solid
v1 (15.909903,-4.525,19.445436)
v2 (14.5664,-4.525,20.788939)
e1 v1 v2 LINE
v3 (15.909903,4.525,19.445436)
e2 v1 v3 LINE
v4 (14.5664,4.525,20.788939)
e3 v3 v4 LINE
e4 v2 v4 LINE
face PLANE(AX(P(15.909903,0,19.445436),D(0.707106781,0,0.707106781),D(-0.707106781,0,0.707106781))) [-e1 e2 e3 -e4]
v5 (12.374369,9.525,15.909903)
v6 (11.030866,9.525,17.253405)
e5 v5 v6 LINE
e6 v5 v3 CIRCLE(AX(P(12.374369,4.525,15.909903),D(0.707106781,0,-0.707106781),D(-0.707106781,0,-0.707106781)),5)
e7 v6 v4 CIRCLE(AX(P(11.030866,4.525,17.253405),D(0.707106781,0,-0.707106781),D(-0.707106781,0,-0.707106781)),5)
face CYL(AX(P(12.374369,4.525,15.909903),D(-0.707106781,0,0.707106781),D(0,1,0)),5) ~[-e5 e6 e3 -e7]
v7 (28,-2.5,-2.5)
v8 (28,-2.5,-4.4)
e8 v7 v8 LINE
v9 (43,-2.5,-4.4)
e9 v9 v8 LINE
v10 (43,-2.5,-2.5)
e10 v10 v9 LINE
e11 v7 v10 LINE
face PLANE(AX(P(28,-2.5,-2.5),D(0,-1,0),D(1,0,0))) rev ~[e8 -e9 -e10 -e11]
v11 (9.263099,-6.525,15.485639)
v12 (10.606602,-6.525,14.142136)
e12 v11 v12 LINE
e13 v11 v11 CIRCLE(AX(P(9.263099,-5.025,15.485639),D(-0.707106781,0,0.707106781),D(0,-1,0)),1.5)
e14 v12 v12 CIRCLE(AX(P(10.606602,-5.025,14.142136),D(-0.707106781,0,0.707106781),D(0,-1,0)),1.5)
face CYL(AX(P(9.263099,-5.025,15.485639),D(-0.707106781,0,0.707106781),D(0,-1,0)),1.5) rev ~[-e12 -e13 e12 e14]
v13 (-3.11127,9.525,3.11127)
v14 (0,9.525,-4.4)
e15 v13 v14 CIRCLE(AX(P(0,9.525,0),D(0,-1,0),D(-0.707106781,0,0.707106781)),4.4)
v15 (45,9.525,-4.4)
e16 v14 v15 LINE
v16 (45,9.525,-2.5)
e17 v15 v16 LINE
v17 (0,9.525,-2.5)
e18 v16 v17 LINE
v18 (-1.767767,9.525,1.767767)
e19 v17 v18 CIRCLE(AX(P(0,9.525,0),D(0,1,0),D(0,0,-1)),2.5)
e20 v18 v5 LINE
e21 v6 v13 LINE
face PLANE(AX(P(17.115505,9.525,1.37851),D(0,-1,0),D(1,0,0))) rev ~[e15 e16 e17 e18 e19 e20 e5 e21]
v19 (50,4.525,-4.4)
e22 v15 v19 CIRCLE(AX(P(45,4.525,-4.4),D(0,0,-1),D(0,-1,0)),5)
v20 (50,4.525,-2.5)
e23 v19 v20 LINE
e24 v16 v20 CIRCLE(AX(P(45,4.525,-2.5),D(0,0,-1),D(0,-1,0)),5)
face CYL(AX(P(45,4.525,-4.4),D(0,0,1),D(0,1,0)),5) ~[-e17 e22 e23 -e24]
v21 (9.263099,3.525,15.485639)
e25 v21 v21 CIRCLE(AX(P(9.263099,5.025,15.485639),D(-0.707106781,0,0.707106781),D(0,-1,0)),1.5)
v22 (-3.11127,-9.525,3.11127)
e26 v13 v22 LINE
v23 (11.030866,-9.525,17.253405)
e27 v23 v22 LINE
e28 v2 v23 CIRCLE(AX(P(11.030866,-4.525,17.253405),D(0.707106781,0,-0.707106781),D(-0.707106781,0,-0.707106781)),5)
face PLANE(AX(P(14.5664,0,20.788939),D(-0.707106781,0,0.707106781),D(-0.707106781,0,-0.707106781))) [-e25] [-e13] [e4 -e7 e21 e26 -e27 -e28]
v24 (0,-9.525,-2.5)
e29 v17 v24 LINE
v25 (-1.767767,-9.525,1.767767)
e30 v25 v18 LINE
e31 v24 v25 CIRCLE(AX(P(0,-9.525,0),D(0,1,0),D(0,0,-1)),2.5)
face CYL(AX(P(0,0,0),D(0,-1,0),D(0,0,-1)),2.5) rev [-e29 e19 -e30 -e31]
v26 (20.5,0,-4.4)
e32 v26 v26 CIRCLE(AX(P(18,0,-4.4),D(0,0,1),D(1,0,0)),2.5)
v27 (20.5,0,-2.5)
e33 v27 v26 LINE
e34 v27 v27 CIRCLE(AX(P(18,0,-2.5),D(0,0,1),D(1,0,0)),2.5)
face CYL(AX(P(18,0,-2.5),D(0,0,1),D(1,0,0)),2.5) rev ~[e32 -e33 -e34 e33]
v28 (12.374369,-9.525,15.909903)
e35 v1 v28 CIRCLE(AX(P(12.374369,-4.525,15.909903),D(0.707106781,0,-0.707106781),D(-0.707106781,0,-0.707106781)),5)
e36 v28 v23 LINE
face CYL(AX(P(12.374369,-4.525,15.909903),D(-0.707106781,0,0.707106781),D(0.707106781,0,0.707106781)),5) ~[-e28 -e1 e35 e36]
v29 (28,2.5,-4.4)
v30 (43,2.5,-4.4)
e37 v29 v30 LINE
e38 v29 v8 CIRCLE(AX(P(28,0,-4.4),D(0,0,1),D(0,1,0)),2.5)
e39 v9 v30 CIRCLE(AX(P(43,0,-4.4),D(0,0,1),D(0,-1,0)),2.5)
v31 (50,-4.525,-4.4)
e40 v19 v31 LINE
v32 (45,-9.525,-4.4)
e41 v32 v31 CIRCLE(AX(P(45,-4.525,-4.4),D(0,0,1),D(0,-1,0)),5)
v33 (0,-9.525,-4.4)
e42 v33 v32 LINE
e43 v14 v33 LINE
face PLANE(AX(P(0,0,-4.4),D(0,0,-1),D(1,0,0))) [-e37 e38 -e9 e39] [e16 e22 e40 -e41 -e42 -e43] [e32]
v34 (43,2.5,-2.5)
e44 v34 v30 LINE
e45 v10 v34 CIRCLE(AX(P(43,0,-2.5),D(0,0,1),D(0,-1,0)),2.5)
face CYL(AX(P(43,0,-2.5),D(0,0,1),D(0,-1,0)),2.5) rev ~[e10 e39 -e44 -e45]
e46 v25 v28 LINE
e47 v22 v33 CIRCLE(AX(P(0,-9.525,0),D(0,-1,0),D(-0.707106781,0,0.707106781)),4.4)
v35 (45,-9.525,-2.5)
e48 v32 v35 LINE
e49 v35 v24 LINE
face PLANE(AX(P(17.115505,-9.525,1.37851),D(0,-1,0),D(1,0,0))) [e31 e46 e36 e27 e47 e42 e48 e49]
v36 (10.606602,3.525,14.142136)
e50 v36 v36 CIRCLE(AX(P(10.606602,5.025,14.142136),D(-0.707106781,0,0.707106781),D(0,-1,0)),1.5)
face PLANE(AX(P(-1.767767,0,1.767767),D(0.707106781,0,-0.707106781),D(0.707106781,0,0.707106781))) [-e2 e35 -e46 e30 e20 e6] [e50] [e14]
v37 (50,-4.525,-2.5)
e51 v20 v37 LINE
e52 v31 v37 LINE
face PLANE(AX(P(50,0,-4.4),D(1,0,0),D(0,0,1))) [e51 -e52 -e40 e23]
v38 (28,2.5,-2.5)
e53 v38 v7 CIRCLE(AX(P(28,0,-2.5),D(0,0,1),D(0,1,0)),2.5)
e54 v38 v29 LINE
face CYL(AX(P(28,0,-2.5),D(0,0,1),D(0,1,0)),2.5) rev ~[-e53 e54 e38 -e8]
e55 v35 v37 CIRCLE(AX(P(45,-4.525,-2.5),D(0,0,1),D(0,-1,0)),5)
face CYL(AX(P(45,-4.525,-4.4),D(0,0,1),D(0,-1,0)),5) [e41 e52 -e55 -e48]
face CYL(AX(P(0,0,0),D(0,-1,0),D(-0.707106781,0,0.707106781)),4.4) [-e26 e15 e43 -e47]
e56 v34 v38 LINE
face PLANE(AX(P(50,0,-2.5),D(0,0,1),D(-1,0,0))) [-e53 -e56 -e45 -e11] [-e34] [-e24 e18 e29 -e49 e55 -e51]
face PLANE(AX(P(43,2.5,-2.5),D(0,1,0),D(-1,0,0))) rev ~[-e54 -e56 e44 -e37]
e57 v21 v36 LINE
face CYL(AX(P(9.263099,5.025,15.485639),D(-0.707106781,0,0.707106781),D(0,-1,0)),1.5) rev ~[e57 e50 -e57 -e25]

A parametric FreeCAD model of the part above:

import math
import FreeCAD as App
import Part
import Sketcher
Q = App.Units.Quantity


def edges_at(feature, points):
    """Names of the edges that pass closest to the given points."""
    edges = feature.Shape.Edges
    near = lambda p: min(range(len(edges)), key=lambda i: edges[i].distToShape(Part.Vertex(*p))[0])
    return sorted({f"Edge{near(p) + 1}" for p in points})

doc = App.newDocument("Part")
body = doc.addObject("PartDesign::Body", "Body")

# Sketch on XZ plane
sketch1 = body.newObject("Sketcher::SketchObject", "Sketch")
sketch1.AttachmentSupport = (doc.getObject("XZ_Plane"), [""])
sketch1.MapMode = "FlatFace"
sketch1.addGeometry([
    Part.LineSegment(App.Vector(14.6, 20.8, 0), App.Vector(-3.1, 3.1, 0)),  # 0
    Part.ArcOfCircle(Part.Circle(App.Vector(0, 0, 0), App.Vector(0, 0, 1), 4.4), math.radians(135), math.radians(270)),  # 1
    Part.LineSegment(App.Vector(0, -4.4, 0), App.Vector(50, -4.4, 0)),  # 2
    Part.LineSegment(App.Vector(50, -4.4, 0), App.Vector(50, -2.5, 0)),  # 3
    Part.LineSegment(App.Vector(50, -2.5, 0), App.Vector(0, -2.5, 0)),  # 4
    Part.ArcOfCircle(Part.Circle(App.Vector(0, 0, 0), App.Vector(0, 0, 1), 2.5), math.radians(135), math.radians(270)),  # 5
    Part.LineSegment(App.Vector(-1.8, 1.8, 0), App.Vector(15.9, 19.4, 0)),  # 6
    Part.LineSegment(App.Vector(15.9, 19.4, 0), App.Vector(14.6, 20.8, 0)),  # 7
], False)
sketch1.addConstraint([
    Sketcher.Constraint("Tangent", 0, 2, 1, 1),
    Sketcher.Constraint("Tangent", 1, 2, 2, 1),
    Sketcher.Constraint("Coincident", 2, 2, 3, 1),
    Sketcher.Constraint("Coincident", 3, 2, 4, 1),
    Sketcher.Constraint("Tangent", 4, 2, 5, 2),
    Sketcher.Constraint("Tangent", 5, 1, 6, 1),
    Sketcher.Constraint("Coincident", 6, 2, 7, 1),
    Sketcher.Constraint("Coincident", 7, 2, 0, 1),
    Sketcher.Constraint("Horizontal", 2),
    Sketcher.Constraint("Vertical", 3),
    Sketcher.Constraint("Horizontal", 4),
    Sketcher.Constraint("Coincident", 1, 3, -1, 1),
    Sketcher.Constraint("Coincident", 5, 3, -1, 1),
    Sketcher.Constraint("Parallel", 0, 6),
    Sketcher.Constraint("Perpendicular", 6, 7),
    Sketcher.Constraint("Radius", 1, 4.4),
    Sketcher.Constraint("Radius", 5, 2.5),
    Sketcher.Constraint("DistanceX", 2, 1, 2, 2, 50.0),
    Sketcher.Constraint("Angle", 0, Q("-135 deg")),
    Sketcher.Constraint("Distance", 0, 25.0),
])
pad1 = body.newObject("PartDesign::Pad", "Pad")
pad1.Profile = sketch1
pad1.Length = 19.05
pad1.Midplane = True

# Sketch on XY plane
sketch2 = body.newObject("Sketcher::SketchObject", "Sketch001")
sketch2.AttachmentSupport = (doc.getObject("XY_Plane"), [""])
sketch2.MapMode = "FlatFace"
sketch2.AttachmentOffset = App.Placement(App.Vector(0, 0, -2.5), App.Rotation())
sketch2.addGeometry([
    Part.LineSegment(App.Vector(43, 2.5, 0), App.Vector(28, 2.5, 0)),  # 0
    Part.ArcOfCircle(Part.Circle(App.Vector(28, 0, 0), App.Vector(0, 0, 1), 2.5), math.radians(90), math.radians(270)),  # 1
    Part.LineSegment(App.Vector(28, -2.5, 0), App.Vector(43, -2.5, 0)),  # 2
    Part.ArcOfCircle(Part.Circle(App.Vector(43, 0, 0), App.Vector(0, 0, 1), 2.5), math.radians(-90), math.radians(90)),  # 3
    Part.Circle(App.Vector(18, 0, 0), App.Vector(0, 0, 1), 2.5),  # 4
], False)
sketch2.addConstraint([
    Sketcher.Constraint("Tangent", 0, 2, 1, 1),
    Sketcher.Constraint("Tangent", 1, 2, 2, 1),
    Sketcher.Constraint("Tangent", 2, 2, 3, 1),
    Sketcher.Constraint("Tangent", 3, 2, 0, 1),
    Sketcher.Constraint("Horizontal", 0),
    Sketcher.Constraint("Horizontal", 2),
    Sketcher.Constraint("Equal", 3, 4),
    Sketcher.Constraint("PointOnObject", 1, 3, -1),
    Sketcher.Constraint("PointOnObject", 4, 3, -1),
    Sketcher.Constraint("Diameter", 4, 5.0),
    Sketcher.Constraint("DistanceX", 0, 2, 0, 1, 15.0),
    Sketcher.Constraint("DistanceX", -1, 1, 1, 3, 28.0),
    Sketcher.Constraint("DistanceX", -1, 1, 4, 3, 18.0),
])
pocket1 = body.newObject("PartDesign::Pocket", "Pocket")
pocket1.Profile = sketch2
pocket1.Type = "ThroughAll"

# Sketch on an angled plane
sketch3 = body.newObject("Sketcher::SketchObject", "Sketch002")
sketch3.Placement = App.Placement(App.Vector(-3.11127, 0, 3.11127), App.Rotation(App.Vector(0, -1, 0), App.Vector(0.707106781, 0, 0.707106781), App.Vector(-0.707106781, 0, 0.707106781), "ZXY"))
sketch3.addGeometry([
    Part.Circle(App.Vector(-5, 17.5, 0), App.Vector(0, 0, 1), 1.5),
    Part.Circle(App.Vector(5, 17.5, 0), App.Vector(0, 0, 1), 1.5),
], False)
sketch3.addConstraint([
    Sketcher.Constraint("Equal", 0, 1),
    Sketcher.Constraint("Symmetric", 0, 3, 1, 3, -2),
    Sketcher.Constraint("Diameter", 0, 3.0),
    Sketcher.Constraint("DistanceY", -1, 1, 0, 3, 17.5),
    Sketcher.Constraint("DistanceX", 0, 3, 1, 3, 10.05),
])
pocket2 = body.newObject("PartDesign::Pocket", "Pocket001")
pocket2.Profile = sketch3
pocket2.Length = 10
doc.recompute()

fillet = body.newObject("PartDesign::Fillet", "Fillet")
fillet.Base = (pocket2, edges_at(pocket2, [
    (15.238, 9.525, 20.117),
    (50, -9.525, -3.45),
    (15.238, -9.525, 20.117),
    (50, 9.525, -3.45),
]))
fillet.Radius = 5

doc.recompute()
